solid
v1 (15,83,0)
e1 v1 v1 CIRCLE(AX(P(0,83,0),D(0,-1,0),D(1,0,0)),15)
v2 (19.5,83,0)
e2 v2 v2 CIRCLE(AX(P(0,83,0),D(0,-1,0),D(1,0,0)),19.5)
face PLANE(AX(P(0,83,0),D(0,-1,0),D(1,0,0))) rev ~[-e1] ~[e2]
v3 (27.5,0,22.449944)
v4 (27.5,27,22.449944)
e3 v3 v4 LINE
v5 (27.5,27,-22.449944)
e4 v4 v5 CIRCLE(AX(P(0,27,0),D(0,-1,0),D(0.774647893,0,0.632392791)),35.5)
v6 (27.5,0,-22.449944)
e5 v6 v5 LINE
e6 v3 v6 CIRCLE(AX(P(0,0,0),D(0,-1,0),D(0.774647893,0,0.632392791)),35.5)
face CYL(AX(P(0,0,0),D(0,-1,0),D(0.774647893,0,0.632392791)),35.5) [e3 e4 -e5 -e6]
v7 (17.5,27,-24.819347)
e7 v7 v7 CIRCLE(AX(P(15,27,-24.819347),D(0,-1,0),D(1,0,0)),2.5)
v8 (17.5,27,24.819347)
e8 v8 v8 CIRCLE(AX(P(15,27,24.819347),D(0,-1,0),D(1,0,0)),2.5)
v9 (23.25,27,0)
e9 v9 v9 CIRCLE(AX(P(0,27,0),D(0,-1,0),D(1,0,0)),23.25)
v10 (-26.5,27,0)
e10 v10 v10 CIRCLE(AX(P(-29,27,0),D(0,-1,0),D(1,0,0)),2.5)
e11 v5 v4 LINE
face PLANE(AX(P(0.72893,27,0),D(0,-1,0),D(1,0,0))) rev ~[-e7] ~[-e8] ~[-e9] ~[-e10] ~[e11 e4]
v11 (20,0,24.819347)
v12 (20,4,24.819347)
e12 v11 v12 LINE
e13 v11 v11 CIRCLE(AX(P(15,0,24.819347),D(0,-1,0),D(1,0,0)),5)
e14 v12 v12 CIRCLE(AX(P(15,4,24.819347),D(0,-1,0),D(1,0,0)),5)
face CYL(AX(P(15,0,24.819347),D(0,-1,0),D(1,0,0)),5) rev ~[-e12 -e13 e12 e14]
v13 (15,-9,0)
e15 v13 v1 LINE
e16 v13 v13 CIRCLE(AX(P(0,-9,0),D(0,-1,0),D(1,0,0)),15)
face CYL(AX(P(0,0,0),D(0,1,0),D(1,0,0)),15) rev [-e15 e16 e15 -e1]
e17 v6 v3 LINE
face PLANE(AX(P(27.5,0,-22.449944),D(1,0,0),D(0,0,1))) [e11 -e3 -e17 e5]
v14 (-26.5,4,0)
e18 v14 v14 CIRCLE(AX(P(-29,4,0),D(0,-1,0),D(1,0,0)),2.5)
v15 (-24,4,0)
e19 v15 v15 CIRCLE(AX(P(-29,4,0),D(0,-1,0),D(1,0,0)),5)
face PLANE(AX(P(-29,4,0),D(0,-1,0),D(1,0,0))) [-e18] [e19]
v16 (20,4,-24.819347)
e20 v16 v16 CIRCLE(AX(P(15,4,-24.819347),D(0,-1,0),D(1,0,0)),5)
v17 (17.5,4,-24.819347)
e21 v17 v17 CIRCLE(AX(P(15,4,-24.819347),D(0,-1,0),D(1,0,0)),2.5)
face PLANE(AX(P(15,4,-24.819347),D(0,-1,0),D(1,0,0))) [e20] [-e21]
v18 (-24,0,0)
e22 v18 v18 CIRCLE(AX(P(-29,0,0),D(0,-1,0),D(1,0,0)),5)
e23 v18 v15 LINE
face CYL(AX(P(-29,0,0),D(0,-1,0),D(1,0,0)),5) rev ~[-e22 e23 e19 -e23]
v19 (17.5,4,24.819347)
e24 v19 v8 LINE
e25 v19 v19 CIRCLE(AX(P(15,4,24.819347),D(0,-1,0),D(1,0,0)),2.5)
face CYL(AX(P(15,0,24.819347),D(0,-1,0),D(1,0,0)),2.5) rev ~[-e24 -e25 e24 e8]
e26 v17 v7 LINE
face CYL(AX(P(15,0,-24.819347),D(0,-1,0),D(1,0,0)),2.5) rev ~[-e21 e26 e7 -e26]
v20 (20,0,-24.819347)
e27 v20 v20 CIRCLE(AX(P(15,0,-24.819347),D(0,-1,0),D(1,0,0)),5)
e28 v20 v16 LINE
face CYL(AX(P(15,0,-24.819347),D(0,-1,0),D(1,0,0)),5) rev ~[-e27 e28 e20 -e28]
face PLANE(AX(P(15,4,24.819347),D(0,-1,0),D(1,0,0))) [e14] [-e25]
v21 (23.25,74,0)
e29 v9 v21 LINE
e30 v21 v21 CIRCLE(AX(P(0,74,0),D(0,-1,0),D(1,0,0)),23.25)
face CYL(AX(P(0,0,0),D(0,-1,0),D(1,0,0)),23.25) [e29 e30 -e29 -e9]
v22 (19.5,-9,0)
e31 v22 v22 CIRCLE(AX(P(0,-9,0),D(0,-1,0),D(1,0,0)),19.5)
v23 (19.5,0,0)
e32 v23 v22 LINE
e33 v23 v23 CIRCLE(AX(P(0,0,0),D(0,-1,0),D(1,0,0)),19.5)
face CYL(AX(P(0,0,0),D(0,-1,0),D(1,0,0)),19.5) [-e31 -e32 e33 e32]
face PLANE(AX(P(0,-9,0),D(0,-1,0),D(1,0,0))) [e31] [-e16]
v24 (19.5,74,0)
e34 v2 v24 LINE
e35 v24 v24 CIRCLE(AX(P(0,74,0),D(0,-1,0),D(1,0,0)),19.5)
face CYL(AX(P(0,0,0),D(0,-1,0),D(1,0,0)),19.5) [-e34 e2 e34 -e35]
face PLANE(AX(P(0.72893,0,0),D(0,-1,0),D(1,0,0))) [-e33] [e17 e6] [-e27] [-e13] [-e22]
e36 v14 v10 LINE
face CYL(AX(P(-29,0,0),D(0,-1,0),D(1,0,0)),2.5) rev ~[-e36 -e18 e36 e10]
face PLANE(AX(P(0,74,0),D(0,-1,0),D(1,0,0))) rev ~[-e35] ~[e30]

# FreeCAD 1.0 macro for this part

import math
import FreeCAD as App
import Part
import Sketcher
from FreeCAD import Vector
Q = App.Units.Quantity

doc = App.newDocument("Part")
body = doc.addObject("PartDesign::Body", "Body")

# Sketch on XZ plane
sketch1 = body.newObject("Sketcher::SketchObject", "Sketch")
sketch1.AttachmentSupport = (doc.getObject("XZ_Plane"), [""])
sketch1.MapMode = "FlatFace"
sketch1.addGeometry([
    Part.Circle(Vector(0, 0, 0), Vector(0, 0, 1), 20),
    Part.Circle(Vector(0, 0, 0), Vector(0, 0, 1), 15),
], False)
sketch1.addConstraint([
    Sketcher.Constraint("Coincident", 0, 3, -1, 1),
    Sketcher.Constraint("Coincident", 1, 3, -1, 1),
    Sketcher.Constraint("Diameter", 0, Q("39 mm")),
    Sketcher.Constraint("Diameter", 1, Q("30 mm")),
])
pad1 = body.newObject("PartDesign::Pad", "Pad")
pad1.Profile = sketch1
pad1.Length = 9

# Sketch on XZ plane
sketch2 = body.newObject("Sketcher::SketchObject", "Sketch001")
sketch2.AttachmentSupport = (doc.getObject("XZ_Plane"), [""])
sketch2.MapMode = "FlatFace"
sketch2.addGeometry([
    Part.Circle(Vector(0, 0, 0), Vector(0, 0, 1), 20),
    Part.Circle(Vector(0, 0, 0), Vector(0, 0, 1), 15),
], False)
sketch2.addConstraint([
    Sketcher.Constraint("Coincident", 0, 3, -1, 1),
    Sketcher.Constraint("Coincident", 1, 3, -1, 1),
    Sketcher.Constraint("Diameter", 0, Q("39 mm")),
    Sketcher.Constraint("Diameter", 1, Q("30 mm")),
])
pad2 = body.newObject("PartDesign::Pad", "Pad001")
pad2.Profile = sketch2
pad2.Length = 83
pad2.Reversed = True

# Sketch on XZ plane
sketch3 = body.newObject("Sketcher::SketchObject", "Sketch002")
sketch3.AttachmentSupport = (doc.getObject("XZ_Plane"), [""])
sketch3.MapMode = "FlatFace"
sketch3.addGeometry([
    Part.Circle(Vector(0, 0, 0), Vector(0, 0, 1), 23),
    Part.Circle(Vector(0, 0, 0), Vector(0, 0, 1), 20),
], False)
sketch3.addConstraint([
    Sketcher.Constraint("Coincident", 0, 3, -1, 1),
    Sketcher.Constraint("Coincident", 1, 3, -1, 1),
    Sketcher.Constraint("Diameter", 1, Q("39 mm")),
    Sketcher.Constraint("Diameter", 0, Q("46.5 mm")),
])
pad3 = body.newObject("PartDesign::Pad", "Pad002")
pad3.Profile = sketch3
pad3.Length = 74
pad3.Reversed = True

# Sketch on XZ plane
sketch4 = body.newObject("Sketcher::SketchObject", "Sketch003")
sketch4.AttachmentSupport = (doc.getObject("XZ_Plane"), [""])
sketch4.MapMode = "FlatFace"
sketch4.addGeometry([
    Part.LineSegment(Vector(28, -22, 0), Vector(28, 22, 0)),
    Part.ArcOfCircle(Part.Circle(Vector(0, 0, 0), Vector(0, 0, 1), 35), math.radians(39), math.radians(321)),
    Part.Circle(Vector(0, 0, 0), Vector(0, 0, 1), 23),
], False)
sketch4.addConstraint([
    Sketcher.Constraint("Coincident", 0, 1, 1, 2),
    Sketcher.Constraint("Coincident", 1, 1, 0, 2),
    Sketcher.Constraint("Vertical", 0),
    Sketcher.Constraint("Coincident", 1, 3, -1, 1),
    Sketcher.Constraint("Coincident", 2, 3, -1, 1),
    Sketcher.Constraint("Diameter", 2, Q("46.5 mm")),
    Sketcher.Constraint("Radius", 1, Q("35.5 mm")),
    Sketcher.Constraint("DistanceX", -1, 1, 0, 1, Q("27.5 mm")),
])
pad4 = body.newObject("PartDesign::Pad", "Pad003")
pad4.Profile = sketch4
pad4.Length = 27
pad4.Reversed = True

# Sketch on XZ plane
sketch5 = body.newObject("Sketcher::SketchObject", "Sketch004")
sketch5.AttachmentSupport = (doc.getObject("XZ_Plane"), [""])
sketch5.MapMode = "FlatFace"
sketch5.addGeometry([
    Part.Circle(Vector(15, -24.8, 0), Vector(0, 0, 1), 5),  # 0
    Part.Circle(Vector(15, -24.8, 0), Vector(0, 0, 1), 2.5),  # 1
    Part.Circle(Vector(15, 24.8, 0), Vector(0, 0, 1), 5),  # 2
    Part.Circle(Vector(15, 24.8, 0), Vector(0, 0, 1), 2.5),  # 3
    Part.Circle(Vector(-29, 0, 0), Vector(0, 0, 1), 5),  # 4
    Part.Circle(Vector(-29, 0, 0), Vector(0, 0, 1), 2.5),  # 5
], False)
sketch5.addConstraint([
    Sketcher.Constraint("Coincident", 1, 3, 0, 3),
    Sketcher.Constraint("Coincident", 3, 3, 2, 3),
    Sketcher.Constraint("Coincident", 5, 3, 4, 3),
    Sketcher.Constraint("Equal", 0, 2),
    Sketcher.Constraint("Equal", 1, 3),
    Sketcher.Constraint("Equal", 2, 4),
    Sketcher.Constraint("Equal", 3, 5),
    Sketcher.Constraint("Symmetric", 0, 3, 2, 3, -1),
    Sketcher.Constraint("PointOnObject", 4, 3, -1),
    Sketcher.Constraint("Diameter", 0, Q("10 mm")),
    Sketcher.Constraint("Diameter", 1, Q("5 mm")),
    Sketcher.Constraint("DistanceX", -1, 1, 0, 3, Q("15 mm")),
    Sketcher.Constraint("DistanceX", 4, 3, -1, 1, Q("29 mm")),
    Sketcher.Constraint("DistanceY", 0, 3, -1, 1, Q("24.819347 mm")),
])
pocket1 = body.newObject("PartDesign::Pocket", "Pocket")
pocket1.Profile = sketch5
pocket1.Length = 4

# Sketch on XZ plane
sketch6 = body.newObject("Sketcher::SketchObject", "Sketch005")
sketch6.AttachmentSupport = (doc.getObject("XZ_Plane"), [""])
sketch6.MapMode = "FlatFace"
sketch6.addGeometry([
    Part.Circle(Vector(15, -24.8, 0), Vector(0, 0, 1), 2.5),
    Part.Circle(Vector(15, 24.8, 0), Vector(0, 0, 1), 2.5),
    Part.Circle(Vector(-29, 0, 0), Vector(0, 0, 1), 2.5),
], False)
sketch6.addConstraint([
    Sketcher.Constraint("Equal", 0, 1),
    Sketcher.Constraint("Equal", 1, 2),
    Sketcher.Constraint("Symmetric", 0, 3, 1, 3, -1),
    Sketcher.Constraint("PointOnObject", 2, 3, -1),
    Sketcher.Constraint("Diameter", 0, Q("5 mm")),
    Sketcher.Constraint("DistanceX", -1, 1, 0, 3, Q("15 mm")),
    Sketcher.Constraint("DistanceX", 2, 3, -1, 1, Q("29 mm")),
    Sketcher.Constraint("DistanceY", 0, 3, -1, 1, Q("24.819347 mm")),
])
pocket2 = body.newObject("PartDesign::Pocket", "Pocket001")
pocket2.Profile = sketch6
pocket2.Length = 27

doc.recompute()
